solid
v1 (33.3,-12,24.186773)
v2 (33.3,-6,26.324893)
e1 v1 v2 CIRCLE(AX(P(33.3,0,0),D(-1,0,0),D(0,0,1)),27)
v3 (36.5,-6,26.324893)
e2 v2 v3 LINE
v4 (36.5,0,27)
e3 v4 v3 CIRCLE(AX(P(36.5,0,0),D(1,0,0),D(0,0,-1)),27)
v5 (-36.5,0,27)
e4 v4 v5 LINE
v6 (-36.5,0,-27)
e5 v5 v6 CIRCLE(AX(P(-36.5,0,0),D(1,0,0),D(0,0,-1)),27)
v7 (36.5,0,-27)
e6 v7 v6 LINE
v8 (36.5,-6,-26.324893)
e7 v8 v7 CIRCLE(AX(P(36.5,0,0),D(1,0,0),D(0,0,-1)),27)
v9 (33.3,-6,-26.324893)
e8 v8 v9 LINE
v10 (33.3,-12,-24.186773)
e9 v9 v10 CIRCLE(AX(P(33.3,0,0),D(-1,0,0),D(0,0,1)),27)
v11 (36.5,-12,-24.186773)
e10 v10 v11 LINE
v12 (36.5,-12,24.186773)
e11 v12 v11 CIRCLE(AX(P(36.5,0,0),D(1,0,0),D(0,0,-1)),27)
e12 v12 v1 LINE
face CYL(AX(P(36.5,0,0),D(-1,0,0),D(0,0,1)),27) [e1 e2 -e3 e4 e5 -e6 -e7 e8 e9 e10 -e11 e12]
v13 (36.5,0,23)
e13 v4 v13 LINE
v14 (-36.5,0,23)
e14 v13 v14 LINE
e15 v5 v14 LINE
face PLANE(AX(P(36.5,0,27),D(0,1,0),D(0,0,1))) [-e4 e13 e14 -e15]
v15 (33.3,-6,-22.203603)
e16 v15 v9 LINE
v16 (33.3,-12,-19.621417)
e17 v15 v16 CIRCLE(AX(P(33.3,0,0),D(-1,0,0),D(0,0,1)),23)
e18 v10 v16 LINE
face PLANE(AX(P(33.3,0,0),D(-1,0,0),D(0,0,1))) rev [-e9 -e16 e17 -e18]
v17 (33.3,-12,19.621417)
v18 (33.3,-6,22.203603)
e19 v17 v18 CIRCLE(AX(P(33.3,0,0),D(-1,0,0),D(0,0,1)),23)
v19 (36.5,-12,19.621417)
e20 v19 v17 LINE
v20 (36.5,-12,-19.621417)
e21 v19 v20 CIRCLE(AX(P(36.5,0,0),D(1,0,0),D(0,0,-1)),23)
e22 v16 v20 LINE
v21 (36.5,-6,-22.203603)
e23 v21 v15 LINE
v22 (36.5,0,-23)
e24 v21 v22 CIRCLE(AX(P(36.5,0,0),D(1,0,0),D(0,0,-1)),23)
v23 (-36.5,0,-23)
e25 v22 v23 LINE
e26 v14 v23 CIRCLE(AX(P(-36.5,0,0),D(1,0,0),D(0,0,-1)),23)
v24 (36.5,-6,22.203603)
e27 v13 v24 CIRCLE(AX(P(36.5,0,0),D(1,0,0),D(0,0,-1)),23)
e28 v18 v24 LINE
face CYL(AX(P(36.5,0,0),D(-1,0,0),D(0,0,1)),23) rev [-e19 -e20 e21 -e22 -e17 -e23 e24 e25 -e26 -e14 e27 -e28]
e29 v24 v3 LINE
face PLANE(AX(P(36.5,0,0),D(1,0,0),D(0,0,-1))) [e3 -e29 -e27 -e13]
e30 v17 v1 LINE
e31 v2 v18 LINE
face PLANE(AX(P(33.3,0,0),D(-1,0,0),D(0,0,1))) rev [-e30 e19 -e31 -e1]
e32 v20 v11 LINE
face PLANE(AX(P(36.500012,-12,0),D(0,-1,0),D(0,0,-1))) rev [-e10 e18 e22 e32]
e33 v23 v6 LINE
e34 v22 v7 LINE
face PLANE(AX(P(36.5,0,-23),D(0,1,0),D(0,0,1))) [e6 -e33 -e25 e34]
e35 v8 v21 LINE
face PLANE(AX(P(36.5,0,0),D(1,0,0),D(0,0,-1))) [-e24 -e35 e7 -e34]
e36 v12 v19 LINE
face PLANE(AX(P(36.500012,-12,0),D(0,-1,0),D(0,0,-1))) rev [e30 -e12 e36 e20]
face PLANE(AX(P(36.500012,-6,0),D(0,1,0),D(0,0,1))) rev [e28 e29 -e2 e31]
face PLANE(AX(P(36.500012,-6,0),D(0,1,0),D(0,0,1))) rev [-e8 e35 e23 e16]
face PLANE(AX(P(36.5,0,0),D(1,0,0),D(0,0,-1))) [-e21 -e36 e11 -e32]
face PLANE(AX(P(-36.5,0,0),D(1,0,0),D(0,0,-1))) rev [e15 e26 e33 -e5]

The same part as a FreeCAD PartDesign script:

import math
import FreeCAD as App
import Part
import Sketcher


def add_polygon(sketch, points):
    """Adds a closed chain of lines whose ends are joined by coincident constraints."""
    first, n = sketch.GeometryCount, len(points)
    for a, b in zip(points, points[1:] + points[:1]):
        sketch.addGeometry(Part.LineSegment(App.Vector(*a, 0), App.Vector(*b, 0)), False)
    for i in range(n):
        sketch.addConstraint(Sketcher.Constraint("Coincident", first + i, 2, first + (i + 1) % n, 1))

doc = App.newDocument("Part")
body = doc.addObject("PartDesign::Body", "Body")

# Sketch on YZ plane
sketch1 = body.newObject("Sketcher::SketchObject", "Sketch")
sketch1.AttachmentSupport = (doc.getObject("YZ_Plane"), [""])
sketch1.MapMode = "FlatFace"
sketch1.addGeometry(Part.LineSegment(App.Vector(0, 23, 0), App.Vector(0, 27, 0)), False)
sketch1.addGeometry(Part.ArcOfCircle(Part.Circle(App.Vector(0, 0, 0), App.Vector(0, 0, 1), 27), math.radians(90), math.radians(270)), False)
sketch1.addGeometry(Part.LineSegment(App.Vector(0, -27, 0), App.Vector(0, -23, 0)), False)
sketch1.addGeometry(Part.ArcOfCircle(Part.Circle(App.Vector(0, 0, 0), App.Vector(0, 0, 1), 23), math.radians(90), math.radians(270)), False)
sketch1.addConstraint(Sketcher.Constraint("Coincident", 0, 2, 1, 1))
sketch1.addConstraint(Sketcher.Constraint("Coincident", 1, 2, 2, 1))
sketch1.addConstraint(Sketcher.Constraint("Coincident", 2, 2, 3, 2))
sketch1.addConstraint(Sketcher.Constraint("Coincident", 3, 1, 0, 1))
sketch1.addConstraint(Sketcher.Constraint("Vertical", 0))
sketch1.addConstraint(Sketcher.Constraint("Vertical", 2))
sketch1.addConstraint(Sketcher.Constraint("Coincident", 1, 3, -1, 1))
sketch1.addConstraint(Sketcher.Constraint("Coincident", 3, 3, -1, 1))
sketch1.addConstraint(Sketcher.Constraint("PointOnObject", 0, 2, -2))
sketch1.addConstraint(Sketcher.Constraint("PointOnObject", 1, 2, -2))
sketch1.addConstraint(Sketcher.Constraint("Radius", 1, 27.0))
sketch1.addConstraint(Sketcher.Constraint("Radius", 3, 23.0))
pad1 = body.newObject("PartDesign::Pad", "Pad")
pad1.Profile = sketch1
pad1.Length = 73
pad1.Midplane = True

# Sketch on YZ plane
sketch2 = body.newObject("Sketcher::SketchObject", "Sketch001")
sketch2.AttachmentSupport = (doc.getObject("YZ_Plane"), [""])
sketch2.MapMode = "FlatFace"
sketch2.AttachmentOffset = App.Placement(App.Vector(0, 0, 36.5), App.Rotation())
add_polygon(sketch2, [(-6, 29), (-12, 29), (-12, -28), (-6, -28)])  # lines 0-3
sketch2.addConstraint(Sketcher.Constraint("Horizontal", 0))
sketch2.addConstraint(Sketcher.Constraint("Vertical", 1))
sketch2.addConstraint(Sketcher.Constraint("Horizontal", 2))
sketch2.addConstraint(Sketcher.Constraint("Vertical", 3))
sketch2.addConstraint(Sketcher.Constraint("DistanceX", 0, 2, 0, 1, 6.0))
sketch2.addConstraint(Sketcher.Constraint("DistanceX", 0, 2, -1, 1, 12.0))
sketch2.addConstraint(Sketcher.Constraint("DistanceY", 1, 2, 1, 1, 57.250047))
sketch2.addConstraint(Sketcher.Constraint("DistanceY", 1, 2, -1, 1, 28.03856))
pocket1 = body.newObject("PartDesign::Pocket", "Pocket")
pocket1.Profile = sketch2
pocket1.Type = "TwoLengths"
pocket1.Length = 53.822817
pocket1.Length2 = 3.2
pocket1.Reversed = True

doc.recompute()
